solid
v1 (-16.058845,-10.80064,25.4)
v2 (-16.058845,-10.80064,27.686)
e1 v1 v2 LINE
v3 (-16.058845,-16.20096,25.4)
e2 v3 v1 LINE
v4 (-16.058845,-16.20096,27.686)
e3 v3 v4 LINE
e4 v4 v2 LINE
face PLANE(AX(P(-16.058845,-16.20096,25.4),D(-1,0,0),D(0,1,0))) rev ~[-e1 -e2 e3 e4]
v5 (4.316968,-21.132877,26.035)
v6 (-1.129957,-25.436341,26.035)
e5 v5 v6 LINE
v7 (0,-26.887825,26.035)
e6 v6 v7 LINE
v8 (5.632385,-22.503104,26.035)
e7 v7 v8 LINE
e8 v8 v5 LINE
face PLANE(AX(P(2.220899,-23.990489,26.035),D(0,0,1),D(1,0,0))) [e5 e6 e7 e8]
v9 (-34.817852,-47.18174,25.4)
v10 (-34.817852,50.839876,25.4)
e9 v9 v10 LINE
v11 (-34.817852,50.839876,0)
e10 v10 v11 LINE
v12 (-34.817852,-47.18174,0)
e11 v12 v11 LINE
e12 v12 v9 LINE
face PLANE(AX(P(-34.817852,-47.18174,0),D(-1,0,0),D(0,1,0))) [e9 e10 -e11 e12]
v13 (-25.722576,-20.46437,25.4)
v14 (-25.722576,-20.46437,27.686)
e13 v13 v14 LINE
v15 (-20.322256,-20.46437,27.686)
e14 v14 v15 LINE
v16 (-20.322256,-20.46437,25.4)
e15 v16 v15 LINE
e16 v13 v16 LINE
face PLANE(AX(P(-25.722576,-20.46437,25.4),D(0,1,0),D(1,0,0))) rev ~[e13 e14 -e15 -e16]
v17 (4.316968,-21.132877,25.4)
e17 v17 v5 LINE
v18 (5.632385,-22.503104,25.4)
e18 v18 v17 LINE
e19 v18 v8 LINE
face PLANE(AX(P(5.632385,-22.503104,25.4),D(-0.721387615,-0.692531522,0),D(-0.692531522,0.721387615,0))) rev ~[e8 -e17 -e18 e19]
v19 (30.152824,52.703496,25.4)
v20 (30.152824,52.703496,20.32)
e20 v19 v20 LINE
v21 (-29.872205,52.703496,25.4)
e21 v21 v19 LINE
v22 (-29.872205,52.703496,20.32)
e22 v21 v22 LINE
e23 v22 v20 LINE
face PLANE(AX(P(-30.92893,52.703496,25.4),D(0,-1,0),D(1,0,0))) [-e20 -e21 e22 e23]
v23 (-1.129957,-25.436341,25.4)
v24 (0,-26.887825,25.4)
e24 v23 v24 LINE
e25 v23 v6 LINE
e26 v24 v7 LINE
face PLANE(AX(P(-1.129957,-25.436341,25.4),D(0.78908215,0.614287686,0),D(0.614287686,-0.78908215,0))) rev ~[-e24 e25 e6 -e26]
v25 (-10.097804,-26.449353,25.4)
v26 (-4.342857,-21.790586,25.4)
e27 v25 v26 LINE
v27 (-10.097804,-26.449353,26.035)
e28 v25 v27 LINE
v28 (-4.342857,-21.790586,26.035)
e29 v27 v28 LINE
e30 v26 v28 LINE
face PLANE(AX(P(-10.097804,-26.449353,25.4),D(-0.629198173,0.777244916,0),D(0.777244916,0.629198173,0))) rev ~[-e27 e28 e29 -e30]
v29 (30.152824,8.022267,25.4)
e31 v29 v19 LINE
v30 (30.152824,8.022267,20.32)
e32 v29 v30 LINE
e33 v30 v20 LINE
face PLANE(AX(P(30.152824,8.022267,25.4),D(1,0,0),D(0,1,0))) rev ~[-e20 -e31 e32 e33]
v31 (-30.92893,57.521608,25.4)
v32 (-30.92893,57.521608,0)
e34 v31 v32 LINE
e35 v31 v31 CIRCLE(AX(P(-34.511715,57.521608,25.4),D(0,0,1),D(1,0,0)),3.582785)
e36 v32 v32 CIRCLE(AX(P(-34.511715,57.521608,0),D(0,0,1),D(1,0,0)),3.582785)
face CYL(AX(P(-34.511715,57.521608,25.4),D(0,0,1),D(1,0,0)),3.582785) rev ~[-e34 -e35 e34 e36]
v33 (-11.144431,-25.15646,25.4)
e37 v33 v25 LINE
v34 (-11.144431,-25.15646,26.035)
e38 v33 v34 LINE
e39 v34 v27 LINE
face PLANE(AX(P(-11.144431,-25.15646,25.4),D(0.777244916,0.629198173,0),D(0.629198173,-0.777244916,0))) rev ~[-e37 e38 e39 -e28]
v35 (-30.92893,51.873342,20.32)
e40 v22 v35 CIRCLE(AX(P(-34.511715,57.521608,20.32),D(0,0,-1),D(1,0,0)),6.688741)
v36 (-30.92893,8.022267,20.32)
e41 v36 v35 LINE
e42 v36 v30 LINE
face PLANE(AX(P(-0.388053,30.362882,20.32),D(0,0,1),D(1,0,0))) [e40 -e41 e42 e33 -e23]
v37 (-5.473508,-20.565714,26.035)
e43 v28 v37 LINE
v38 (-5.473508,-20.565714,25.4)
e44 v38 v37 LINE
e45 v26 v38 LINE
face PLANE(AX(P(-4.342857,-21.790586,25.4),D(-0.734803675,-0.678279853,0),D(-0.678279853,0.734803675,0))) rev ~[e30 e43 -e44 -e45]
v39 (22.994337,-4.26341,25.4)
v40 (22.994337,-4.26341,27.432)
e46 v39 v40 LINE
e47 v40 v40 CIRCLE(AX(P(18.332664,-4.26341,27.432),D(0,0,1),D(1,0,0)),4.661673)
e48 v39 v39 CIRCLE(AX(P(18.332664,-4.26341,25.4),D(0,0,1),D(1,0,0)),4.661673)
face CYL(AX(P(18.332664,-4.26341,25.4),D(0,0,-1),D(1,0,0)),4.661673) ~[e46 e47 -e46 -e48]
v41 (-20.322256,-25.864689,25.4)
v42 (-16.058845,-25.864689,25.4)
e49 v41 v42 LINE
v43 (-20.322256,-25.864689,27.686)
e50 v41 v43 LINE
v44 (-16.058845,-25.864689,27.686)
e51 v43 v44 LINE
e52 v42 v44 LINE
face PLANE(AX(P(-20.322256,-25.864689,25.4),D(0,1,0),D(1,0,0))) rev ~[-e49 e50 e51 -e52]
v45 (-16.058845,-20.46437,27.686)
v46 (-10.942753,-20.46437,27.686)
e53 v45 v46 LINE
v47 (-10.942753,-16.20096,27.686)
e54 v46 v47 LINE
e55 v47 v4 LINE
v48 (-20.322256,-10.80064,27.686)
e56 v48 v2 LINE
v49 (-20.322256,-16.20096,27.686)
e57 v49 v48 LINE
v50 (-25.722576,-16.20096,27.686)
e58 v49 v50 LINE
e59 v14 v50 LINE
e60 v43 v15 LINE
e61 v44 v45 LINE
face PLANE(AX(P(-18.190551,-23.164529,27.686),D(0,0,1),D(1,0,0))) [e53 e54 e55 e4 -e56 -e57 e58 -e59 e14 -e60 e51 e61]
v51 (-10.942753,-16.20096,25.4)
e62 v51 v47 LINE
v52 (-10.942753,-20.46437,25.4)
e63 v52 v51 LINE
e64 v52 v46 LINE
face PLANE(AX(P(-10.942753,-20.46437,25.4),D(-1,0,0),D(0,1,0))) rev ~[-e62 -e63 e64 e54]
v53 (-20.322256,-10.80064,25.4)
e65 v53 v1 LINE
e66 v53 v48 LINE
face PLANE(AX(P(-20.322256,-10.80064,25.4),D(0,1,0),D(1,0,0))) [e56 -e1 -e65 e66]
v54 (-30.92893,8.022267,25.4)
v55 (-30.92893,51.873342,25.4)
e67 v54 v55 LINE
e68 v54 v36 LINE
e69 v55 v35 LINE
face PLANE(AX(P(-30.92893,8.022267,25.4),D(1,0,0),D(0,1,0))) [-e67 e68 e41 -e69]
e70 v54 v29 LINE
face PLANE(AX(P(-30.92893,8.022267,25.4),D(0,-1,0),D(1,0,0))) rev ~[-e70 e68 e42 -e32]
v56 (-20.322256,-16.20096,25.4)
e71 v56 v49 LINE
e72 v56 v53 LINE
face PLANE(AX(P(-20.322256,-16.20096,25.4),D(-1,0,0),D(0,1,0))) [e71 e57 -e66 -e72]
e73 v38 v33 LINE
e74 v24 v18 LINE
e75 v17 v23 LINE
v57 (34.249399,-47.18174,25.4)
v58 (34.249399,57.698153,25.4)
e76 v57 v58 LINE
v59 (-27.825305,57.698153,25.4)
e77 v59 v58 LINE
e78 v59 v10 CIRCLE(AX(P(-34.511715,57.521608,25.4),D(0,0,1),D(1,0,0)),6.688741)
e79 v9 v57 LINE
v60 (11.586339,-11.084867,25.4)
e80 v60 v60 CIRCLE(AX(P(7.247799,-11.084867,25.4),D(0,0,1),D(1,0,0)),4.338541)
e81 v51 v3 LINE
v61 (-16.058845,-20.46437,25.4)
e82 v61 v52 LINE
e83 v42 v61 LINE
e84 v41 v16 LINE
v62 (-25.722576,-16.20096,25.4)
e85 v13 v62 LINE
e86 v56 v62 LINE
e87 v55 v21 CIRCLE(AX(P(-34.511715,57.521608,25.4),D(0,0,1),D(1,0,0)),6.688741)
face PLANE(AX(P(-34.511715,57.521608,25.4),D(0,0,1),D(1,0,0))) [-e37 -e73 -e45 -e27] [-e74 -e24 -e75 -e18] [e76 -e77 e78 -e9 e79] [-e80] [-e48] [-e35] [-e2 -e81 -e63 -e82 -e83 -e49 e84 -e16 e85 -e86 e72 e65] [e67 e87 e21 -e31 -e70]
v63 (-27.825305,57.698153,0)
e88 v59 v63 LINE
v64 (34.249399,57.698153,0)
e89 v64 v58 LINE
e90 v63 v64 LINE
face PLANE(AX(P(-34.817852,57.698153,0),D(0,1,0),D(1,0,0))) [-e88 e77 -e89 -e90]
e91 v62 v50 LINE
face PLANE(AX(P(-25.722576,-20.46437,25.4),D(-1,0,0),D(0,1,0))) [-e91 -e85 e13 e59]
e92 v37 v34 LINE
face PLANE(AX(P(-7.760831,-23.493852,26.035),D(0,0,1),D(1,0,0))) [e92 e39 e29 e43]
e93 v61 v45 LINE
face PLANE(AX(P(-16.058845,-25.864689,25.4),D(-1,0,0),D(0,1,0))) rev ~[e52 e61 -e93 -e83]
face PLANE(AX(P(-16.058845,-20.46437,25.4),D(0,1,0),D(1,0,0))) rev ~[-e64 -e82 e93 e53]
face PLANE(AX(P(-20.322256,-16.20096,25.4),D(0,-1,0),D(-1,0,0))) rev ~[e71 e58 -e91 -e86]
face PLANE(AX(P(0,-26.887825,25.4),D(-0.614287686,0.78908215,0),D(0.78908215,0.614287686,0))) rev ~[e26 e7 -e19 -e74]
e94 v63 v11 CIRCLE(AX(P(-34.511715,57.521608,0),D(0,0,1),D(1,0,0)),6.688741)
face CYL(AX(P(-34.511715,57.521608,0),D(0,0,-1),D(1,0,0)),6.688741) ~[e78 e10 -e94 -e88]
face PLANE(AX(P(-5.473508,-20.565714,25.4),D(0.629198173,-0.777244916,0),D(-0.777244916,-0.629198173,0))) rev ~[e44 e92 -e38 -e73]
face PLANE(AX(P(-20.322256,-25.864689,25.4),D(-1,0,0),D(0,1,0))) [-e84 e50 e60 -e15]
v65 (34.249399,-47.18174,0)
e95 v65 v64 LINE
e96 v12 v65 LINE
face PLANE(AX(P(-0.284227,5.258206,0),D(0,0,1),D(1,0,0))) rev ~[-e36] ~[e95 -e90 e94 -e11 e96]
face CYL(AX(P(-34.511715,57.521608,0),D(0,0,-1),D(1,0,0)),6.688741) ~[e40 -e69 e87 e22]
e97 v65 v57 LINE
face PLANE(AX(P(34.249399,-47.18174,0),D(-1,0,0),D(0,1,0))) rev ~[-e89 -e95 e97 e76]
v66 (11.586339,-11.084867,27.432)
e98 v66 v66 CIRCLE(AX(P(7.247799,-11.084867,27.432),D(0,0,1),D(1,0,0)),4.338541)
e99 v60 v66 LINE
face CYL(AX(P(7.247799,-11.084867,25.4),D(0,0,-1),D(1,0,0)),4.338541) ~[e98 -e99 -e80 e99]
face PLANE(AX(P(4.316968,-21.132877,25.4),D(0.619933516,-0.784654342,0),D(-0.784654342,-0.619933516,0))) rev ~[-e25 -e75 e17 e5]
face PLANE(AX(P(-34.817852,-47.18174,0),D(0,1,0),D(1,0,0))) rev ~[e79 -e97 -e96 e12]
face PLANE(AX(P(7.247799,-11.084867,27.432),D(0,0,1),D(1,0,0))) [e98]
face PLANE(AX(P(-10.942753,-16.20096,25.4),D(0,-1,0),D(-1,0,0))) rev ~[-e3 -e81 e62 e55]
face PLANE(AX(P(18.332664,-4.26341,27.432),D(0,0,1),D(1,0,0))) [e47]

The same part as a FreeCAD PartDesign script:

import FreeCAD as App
import Part
import Sketcher
from FreeCAD import Vector
Q = App.Units.Quantity

doc = App.newDocument("Part")
body = doc.addObject("PartDesign::Body", "Body")

# Sketch on XY plane
sketch1 = body.newObject("Sketcher::SketchObject", "Sketch")
sketch1.AttachmentSupport = (doc.getObject("XY_Plane"), [""])
sketch1.MapMode = "FlatFace"
sketch1.addGeometry([
    Part.LineSegment(Vector(-35, 58, 0), Vector(-35, -47, 0)),
    Part.LineSegment(Vector(-35, -47, 0), Vector(34, -47, 0)),
    Part.LineSegment(Vector(34, -47, 0), Vector(34, 58, 0)),
    Part.LineSegment(Vector(34, 58, 0), Vector(-35, 58, 0)),
], False)
sketch1.addConstraint([
    Sketcher.Constraint("Coincident", 0, 2, 1, 1),
    Sketcher.Constraint("Coincident", 1, 2, 2, 1),
    Sketcher.Constraint("Coincident", 2, 2, 3, 1),
    Sketcher.Constraint("Coincident", 3, 2, 0, 1),
    Sketcher.Constraint("Vertical", 0),
    Sketcher.Constraint("Horizontal", 1),
    Sketcher.Constraint("Vertical", 2),
    Sketcher.Constraint("Horizontal", 3),
    Sketcher.Constraint("DistanceX", 1, 1, 1, 2, 69.067251),
    Sketcher.Constraint("DistanceX", -1, 1, 1, 2, 34.249399),
    Sketcher.Constraint("DistanceY", 0, 2, 0, 1, 104.879893),
    Sketcher.Constraint("DistanceY", 0, 2, -1, 1, 47.18174),
])
pad1 = body.newObject("PartDesign::Pad", "Pad")
pad1.Profile = sketch1
pad1.Length = Q("1 in")

# Sketch on XY plane
sketch2 = body.newObject("Sketcher::SketchObject", "Sketch001")
sketch2.AttachmentSupport = (doc.getObject("XY_Plane"), [""])
sketch2.MapMode = "FlatFace"
sketch2.AttachmentOffset = App.Placement(Vector(0, 0, 1 * 25.4), App.Rotation())
sketch2.addGeometry([
    Part.LineSegment(Vector(-31, 53, 0), Vector(-31, 8, 0)),
    Part.LineSegment(Vector(-31, 8, 0), Vector(30, 8, 0)),
    Part.LineSegment(Vector(30, 8, 0), Vector(30, 53, 0)),
    Part.LineSegment(Vector(30, 53, 0), Vector(-31, 53, 0)),
], False)
sketch2.addConstraint([
    Sketcher.Constraint("Coincident", 0, 2, 1, 1),
    Sketcher.Constraint("Coincident", 1, 2, 2, 1),
    Sketcher.Constraint("Coincident", 2, 2, 3, 1),
    Sketcher.Constraint("Coincident", 3, 2, 0, 1),
    Sketcher.Constraint("Vertical", 0),
    Sketcher.Constraint("Horizontal", 1),
    Sketcher.Constraint("Vertical", 2),
    Sketcher.Constraint("Horizontal", 3),
    Sketcher.Constraint("DistanceY", 0, 2, 0, 1, 44.681229),
    Sketcher.Constraint("DistanceX", 1, 1, 1, 2, 61.081754),
    Sketcher.Constraint("DistanceX", 0, 2, -1, 1, 30.92893),
    Sketcher.Constraint("DistanceY", -1, 1, 0, 2, 8.022267),
])
pocket1 = body.newObject("PartDesign::Pocket", "Pocket")
pocket1.Profile = sketch2
pocket1.Length = Q("0.2 in")

# Sketch on XY plane
sketch3 = body.newObject("Sketcher::SketchObject", "Sketch002")
sketch3.AttachmentSupport = (doc.getObject("XY_Plane"), [""])
sketch3.MapMode = "FlatFace"
sketch3.addGeometry(Part.Circle(Vector(-35, 58, 0), Vector(0, 0, 1), 7), False)
sketch3.addConstraint([
    Sketcher.Constraint("Diameter", 0, 13.377481),
    Sketcher.Constraint("DistanceX", 0, 3, -1, 1, 34.511715),
    Sketcher.Constraint("DistanceY", -1, 1, 0, 3, 57.521608),
])
pad2 = body.newObject("PartDesign::Pad", "Pad001")
pad2.Profile = sketch3
pad2.Length = Q("1 in")

# Sketch on XY plane
sketch4 = body.newObject("Sketcher::SketchObject", "Sketch003")
sketch4.AttachmentSupport = (doc.getObject("XY_Plane"), [""])
sketch4.MapMode = "FlatFace"
sketch4.AttachmentOffset = App.Placement(Vector(0, 0, 1 * 25.4), App.Rotation())
sketch4.addGeometry(Part.Circle(Vector(-34.5, 57.5, 0), Vector(0, 0, 1), 3.6), False)
sketch4.addConstraint([
    Sketcher.Constraint("Diameter", 0, 7.16557),
    Sketcher.Constraint("DistanceX", 0, 3, -1, 1, 34.511715),
    Sketcher.Constraint("DistanceY", -1, 1, 0, 3, 57.521608),
])
pocket2 = body.newObject("PartDesign::Pocket", "Pocket001")
pocket2.Profile = sketch4
pocket2.Length = Q("1 in")

# Sketch on XY plane
sketch5 = body.newObject("Sketcher::SketchObject", "Sketch004")
sketch5.AttachmentSupport = (doc.getObject("XY_Plane"), [""])
sketch5.MapMode = "FlatFace"
sketch5.AttachmentOffset = App.Placement(Vector(0, 0, 1 * 25.4), App.Rotation())
sketch5.addGeometry([
    Part.LineSegment(Vector(-20.3, -20.5, 0), Vector(-20.3, -25.9, 0)),  # 0
    Part.LineSegment(Vector(-20.3, -25.9, 0), Vector(-16.1, -25.9, 0)),  # 1
    Part.LineSegment(Vector(-16.1, -25.9, 0), Vector(-16.1, -20.5, 0)),  # 2
    Part.LineSegment(Vector(-16.1, -20.5, 0), Vector(-10.9, -20.5, 0)),  # 3
    Part.LineSegment(Vector(-10.9, -20.5, 0), Vector(-10.9, -16.2, 0)),  # 4
    Part.LineSegment(Vector(-10.9, -16.2, 0), Vector(-16.1, -16.2, 0)),  # 5
    Part.LineSegment(Vector(-16.1, -16.2, 0), Vector(-16.1, -10.8, 0)),  # 6
    Part.LineSegment(Vector(-16.1, -10.8, 0), Vector(-20.3, -10.8, 0)),  # 7
    Part.LineSegment(Vector(-20.3, -10.8, 0), Vector(-20.3, -16.2, 0)),  # 8
    Part.LineSegment(Vector(-20.3, -16.2, 0), Vector(-25.7, -16.2, 0)),  # 9
    Part.LineSegment(Vector(-25.7, -16.2, 0), Vector(-25.7, -20.5, 0)),  # 10
    Part.LineSegment(Vector(-25.7, -20.5, 0), Vector(-20.3, -20.5, 0)),  # 11
], False)
sketch5.addConstraint([
    Sketcher.Constraint("Coincident", 0, 2, 1, 1),
    Sketcher.Constraint("Coincident", 1, 2, 2, 1),
    Sketcher.Constraint("Coincident", 2, 2, 3, 1),
    Sketcher.Constraint("Coincident", 3, 2, 4, 1),
    Sketcher.Constraint("Coincident", 4, 2, 5, 1),
    Sketcher.Constraint("Coincident", 5, 2, 6, 1),
    Sketcher.Constraint("Coincident", 6, 2, 7, 1),
    Sketcher.Constraint("Coincident", 7, 2, 8, 1),
    Sketcher.Constraint("Coincident", 8, 2, 9, 1),
    Sketcher.Constraint("Coincident", 9, 2, 10, 1),
    Sketcher.Constraint("Coincident", 10, 2, 11, 1),
    Sketcher.Constraint("Coincident", 11, 2, 0, 1),
    Sketcher.Constraint("Vertical", 0),
    Sketcher.Constraint("Horizontal", 1),
    Sketcher.Constraint("Vertical", 2),
    Sketcher.Constraint("Horizontal", 3),
    Sketcher.Constraint("Vertical", 4),
    Sketcher.Constraint("Horizontal", 5),
    Sketcher.Constraint("Vertical", 6),
    Sketcher.Constraint("Horizontal", 7),
    Sketcher.Constraint("Vertical", 8),
    Sketcher.Constraint("Horizontal", 9),
    Sketcher.Constraint("Vertical", 10),
    Sketcher.Constraint("Horizontal", 11),
    Sketcher.Constraint("Horizontal", 5, 2, 8, 2),
    Sketcher.Constraint("Horizontal", 3, 2, 10, 2),
    Sketcher.Constraint("Vertical", 2, 2, 5, 2),
    Sketcher.Constraint("Vertical", 0, 2, 7, 2),
    Sketcher.Constraint("Equal", 11, 0),
    Sketcher.Constraint("Equal", 7, 4),
    Sketcher.Constraint("Equal", 2, 6),
    Sketcher.Constraint("DistanceX", 9, 2, -1, 1, Q("1.0126999 in")),
    Sketcher.Constraint("DistanceX", 1, 1, 1, 2, 4.26341),
    Sketcher.Constraint("DistanceX", 9, 2, 9, 1, 5.400321),
    Sketcher.Constraint("DistanceX", 3, 1, 3, 2, 5.116092),
    Sketcher.Constraint("DistanceY", 0, 2, -1, 1, 25.864689),
])
pad3 = body.newObject("PartDesign::Pad", "Pad002")
pad3.Profile = sketch5
pad3.Length = Q("0.09 in")

# Sketch on XY plane
sketch6 = body.newObject("Sketcher::SketchObject", "Sketch005")
sketch6.AttachmentSupport = (doc.getObject("XY_Plane"), [""])
sketch6.MapMode = "FlatFace"
sketch6.AttachmentOffset = App.Placement(Vector(0, 0, 1 * 25.4), App.Rotation())
sketch6.addGeometry([
    Part.Circle(Vector(7.2, -11.1, 0), Vector(0, 0, 1), 4.3),
    Part.Circle(Vector(18.3, -4.3, 0), Vector(0, 0, 1), 4.7),
], False)
sketch6.addConstraint([
    Sketcher.Constraint("Diameter", 0, 8.677081),
    Sketcher.Constraint("Diameter", 1, 9.323347),
    Sketcher.Constraint("DistanceX", -1, 1, 0, 3, 7.247799),
    Sketcher.Constraint("DistanceY", 1, 3, -1, 1, 4.26341),
    Sketcher.Constraint("DistanceY", 0, 3, -1, 1, 11.084867),
    Sketcher.Constraint("DistanceX", -1, 1, 1, 3, 18.332664),
])
pad4 = body.newObject("PartDesign::Pad", "Pad003")
pad4.Profile = sketch6
pad4.Length = Q("0.08 in")

# Sketch on XY plane
sketch7 = body.newObject("Sketcher::SketchObject", "Sketch006")
sketch7.AttachmentSupport = (doc.getObject("XY_Plane"), [""])
sketch7.MapMode = "FlatFace"
sketch7.AttachmentOffset = App.Placement(Vector(0, 0, 1 * 25.4), App.Rotation())
sketch7.addGeometry([
    Part.LineSegment(Vector(5.6, -22.5, 0), Vector(4.3, -21.1, 0)),  # 0
    Part.LineSegment(Vector(4.3, -21.1, 0), Vector(-1.1, -25.4, 0)),  # 1
    Part.LineSegment(Vector(-1.1, -25.4, 0), Vector(0, -26.9, 0)),  # 2
    Part.LineSegment(Vector(0, -26.9, 0), Vector(5.6, -22.5, 0)),  # 3
    Part.LineSegment(Vector(-10.1, -26.4, 0), Vector(-4.3, -21.8, 0)),  # 4
    Part.LineSegment(Vector(-4.3, -21.8, 0), Vector(-5.5, -20.6, 0)),  # 5
    Part.LineSegment(Vector(-5.5, -20.6, 0), Vector(-11.1, -25.2, 0)),  # 6
    Part.LineSegment(Vector(-11.1, -25.2, 0), Vector(-10.1, -26.4, 0)),  # 7
], False)
sketch7.addConstraint([
    Sketcher.Constraint("Coincident", 0, 2, 1, 1),
    Sketcher.Constraint("Coincident", 1, 2, 2, 1),
    Sketcher.Constraint("Coincident", 2, 2, 3, 1),
    Sketcher.Constraint("Coincident", 3, 2, 0, 1),
    Sketcher.Constraint("Coincident", 4, 2, 5, 1),
    Sketcher.Constraint("Coincident", 5, 2, 6, 1),
    Sketcher.Constraint("Coincident", 6, 2, 7, 1),
    Sketcher.Constraint("Coincident", 7, 2, 4, 1),
    Sketcher.Constraint("PointOnObject", 2, 2, -2),
    Sketcher.Constraint("Perpendicular", 2, 3),
    Sketcher.Constraint("Parallel", 4, 6),
    Sketcher.Constraint("Perpendicular", 6, 7),
    Sketcher.Constraint("DistanceX", 4, 2, 1, 2, 3.2129),
    Sketcher.Constraint("DistanceX", 6, 2, 0, 2, 15.4614),
    Sketcher.Constraint("Distance", 2, 1.839459),
    Sketcher.Constraint("Distance", 4, 7.404291),
    Sketcher.Constraint("Distance", 5, 1.666939),
    Sketcher.Constraint("Distance", 7, 1.66343),
    Sketcher.Constraint("DistanceX", -1, 1, 0, 2, 4.316968),
    Sketcher.Constraint("DistanceY", 1, 2, -1, 1, 25.436341),
    Sketcher.Constraint("DistanceX", 5, 2, -1, 1, 5.473508),
    Sketcher.Constraint("DistanceY", 6, 2, -1, 1, 25.15646),
    Sketcher.Constraint("DistanceY", 2, 2, 3, 2, 4.384721),
    Sketcher.Constraint("DistanceY", 4, 2, 0, 2, 0.657709),
])
pad5 = body.newObject("PartDesign::Pad", "Pad004")
pad5.Profile = sketch7
pad5.Length = Q("0.025 in")

doc.recompute()
